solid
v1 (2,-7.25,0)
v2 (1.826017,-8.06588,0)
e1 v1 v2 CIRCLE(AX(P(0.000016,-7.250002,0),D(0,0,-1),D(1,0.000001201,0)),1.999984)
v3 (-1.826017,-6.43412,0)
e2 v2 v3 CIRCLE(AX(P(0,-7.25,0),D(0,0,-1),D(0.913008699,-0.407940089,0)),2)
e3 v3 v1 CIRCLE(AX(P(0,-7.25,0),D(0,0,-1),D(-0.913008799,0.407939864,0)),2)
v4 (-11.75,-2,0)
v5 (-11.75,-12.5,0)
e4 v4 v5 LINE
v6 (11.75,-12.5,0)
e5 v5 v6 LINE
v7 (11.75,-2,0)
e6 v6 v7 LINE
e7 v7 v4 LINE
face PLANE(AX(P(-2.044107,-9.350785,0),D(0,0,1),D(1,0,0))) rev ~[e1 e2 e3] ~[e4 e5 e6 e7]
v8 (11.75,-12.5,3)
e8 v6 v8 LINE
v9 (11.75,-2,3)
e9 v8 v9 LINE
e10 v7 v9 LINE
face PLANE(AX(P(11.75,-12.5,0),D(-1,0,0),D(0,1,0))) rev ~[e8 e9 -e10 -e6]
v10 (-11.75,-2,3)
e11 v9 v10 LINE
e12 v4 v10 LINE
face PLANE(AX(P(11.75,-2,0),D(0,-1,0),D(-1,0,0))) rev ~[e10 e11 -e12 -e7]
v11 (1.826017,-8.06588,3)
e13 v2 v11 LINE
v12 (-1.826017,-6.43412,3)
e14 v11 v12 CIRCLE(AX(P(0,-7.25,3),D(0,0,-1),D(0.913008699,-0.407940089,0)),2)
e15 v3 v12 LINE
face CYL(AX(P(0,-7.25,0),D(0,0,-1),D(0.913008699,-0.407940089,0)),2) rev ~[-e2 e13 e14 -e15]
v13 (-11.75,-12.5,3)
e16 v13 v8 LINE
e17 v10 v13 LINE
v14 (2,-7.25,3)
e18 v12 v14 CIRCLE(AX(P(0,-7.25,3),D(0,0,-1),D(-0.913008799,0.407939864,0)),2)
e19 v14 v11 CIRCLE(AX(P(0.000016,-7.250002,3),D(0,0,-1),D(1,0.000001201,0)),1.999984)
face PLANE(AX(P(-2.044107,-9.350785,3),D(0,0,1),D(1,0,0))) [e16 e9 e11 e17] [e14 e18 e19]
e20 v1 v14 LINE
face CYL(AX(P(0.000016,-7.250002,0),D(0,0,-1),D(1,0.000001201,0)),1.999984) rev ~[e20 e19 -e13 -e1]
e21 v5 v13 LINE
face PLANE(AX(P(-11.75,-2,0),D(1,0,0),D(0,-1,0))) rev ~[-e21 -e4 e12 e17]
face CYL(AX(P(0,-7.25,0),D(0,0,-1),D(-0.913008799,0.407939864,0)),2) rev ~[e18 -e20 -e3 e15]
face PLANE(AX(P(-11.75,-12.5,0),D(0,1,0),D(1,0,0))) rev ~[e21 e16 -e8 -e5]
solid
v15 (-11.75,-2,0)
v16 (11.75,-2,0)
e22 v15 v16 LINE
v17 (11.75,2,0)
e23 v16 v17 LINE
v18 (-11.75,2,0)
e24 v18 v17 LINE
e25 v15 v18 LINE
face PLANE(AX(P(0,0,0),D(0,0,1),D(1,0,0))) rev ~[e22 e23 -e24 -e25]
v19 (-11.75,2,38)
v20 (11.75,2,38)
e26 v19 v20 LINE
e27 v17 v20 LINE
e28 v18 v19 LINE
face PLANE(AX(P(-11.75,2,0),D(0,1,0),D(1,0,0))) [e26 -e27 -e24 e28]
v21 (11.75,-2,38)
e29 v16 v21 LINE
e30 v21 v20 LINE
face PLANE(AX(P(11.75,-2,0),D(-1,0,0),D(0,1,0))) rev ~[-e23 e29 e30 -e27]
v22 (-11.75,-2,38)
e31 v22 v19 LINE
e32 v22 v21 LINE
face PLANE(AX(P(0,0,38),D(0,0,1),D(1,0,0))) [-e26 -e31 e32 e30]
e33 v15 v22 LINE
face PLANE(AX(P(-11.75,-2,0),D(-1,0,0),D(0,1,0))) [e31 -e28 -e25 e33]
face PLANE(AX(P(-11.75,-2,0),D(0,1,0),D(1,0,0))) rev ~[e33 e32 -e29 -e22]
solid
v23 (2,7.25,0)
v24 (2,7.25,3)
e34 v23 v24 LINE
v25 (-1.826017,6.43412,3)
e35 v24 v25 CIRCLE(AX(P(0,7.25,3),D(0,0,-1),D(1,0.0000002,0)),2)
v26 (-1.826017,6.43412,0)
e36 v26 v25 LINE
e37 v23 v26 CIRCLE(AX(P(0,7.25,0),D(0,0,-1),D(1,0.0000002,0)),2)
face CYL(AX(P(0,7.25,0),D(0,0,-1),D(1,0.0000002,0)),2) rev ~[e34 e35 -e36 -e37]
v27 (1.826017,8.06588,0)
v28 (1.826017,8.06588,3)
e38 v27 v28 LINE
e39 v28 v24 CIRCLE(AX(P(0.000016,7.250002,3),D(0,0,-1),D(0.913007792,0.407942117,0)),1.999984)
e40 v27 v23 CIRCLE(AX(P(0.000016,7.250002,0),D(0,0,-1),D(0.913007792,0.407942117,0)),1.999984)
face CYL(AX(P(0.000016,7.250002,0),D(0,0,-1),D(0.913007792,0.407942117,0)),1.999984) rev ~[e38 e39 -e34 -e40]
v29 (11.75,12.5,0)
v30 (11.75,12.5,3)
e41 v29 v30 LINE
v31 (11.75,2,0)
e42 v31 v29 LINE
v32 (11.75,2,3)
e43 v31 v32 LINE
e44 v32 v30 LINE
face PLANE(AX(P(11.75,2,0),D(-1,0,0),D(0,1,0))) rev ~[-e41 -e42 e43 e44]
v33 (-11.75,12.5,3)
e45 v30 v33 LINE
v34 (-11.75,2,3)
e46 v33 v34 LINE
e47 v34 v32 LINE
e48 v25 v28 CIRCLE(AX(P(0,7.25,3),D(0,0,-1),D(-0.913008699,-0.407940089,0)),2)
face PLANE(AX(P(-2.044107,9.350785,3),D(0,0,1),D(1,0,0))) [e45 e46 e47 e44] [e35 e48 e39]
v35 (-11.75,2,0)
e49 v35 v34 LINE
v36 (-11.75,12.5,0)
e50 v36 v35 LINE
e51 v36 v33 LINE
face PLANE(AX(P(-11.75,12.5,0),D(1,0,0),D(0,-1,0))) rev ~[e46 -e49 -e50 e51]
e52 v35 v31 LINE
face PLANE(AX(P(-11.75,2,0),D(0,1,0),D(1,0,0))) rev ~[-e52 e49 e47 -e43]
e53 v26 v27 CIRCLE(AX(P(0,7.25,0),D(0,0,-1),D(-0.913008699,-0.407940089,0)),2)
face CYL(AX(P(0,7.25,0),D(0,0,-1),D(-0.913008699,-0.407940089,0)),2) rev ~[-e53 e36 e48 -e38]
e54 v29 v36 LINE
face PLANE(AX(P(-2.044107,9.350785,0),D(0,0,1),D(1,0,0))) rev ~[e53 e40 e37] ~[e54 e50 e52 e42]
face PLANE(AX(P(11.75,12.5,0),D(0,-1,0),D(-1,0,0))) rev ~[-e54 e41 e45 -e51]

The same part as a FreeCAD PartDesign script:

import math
import FreeCAD as App
import Part
import Sketcher

V = App.Vector
Q = App.Units.Quantity


def add_polygon(sketch, points):
    """Adds a closed chain of lines whose ends are joined by coincident constraints."""
    first, n = sketch.GeometryCount, len(points)
    for a, b in zip(points, points[1:] + points[:1]):
        sketch.addGeometry(Part.LineSegment(App.Vector(*a, 0), App.Vector(*b, 0)), False)
    for i in range(n):
        sketch.addConstraint(Sketcher.Constraint("Coincident", first + i, 2, first + (i + 1) % n, 1))

doc = App.newDocument("Part")
body = doc.addObject("PartDesign::Body", "Body")
body.AllowCompound = True

# Sketch on XY plane
sketch1 = body.newObject("Sketcher::SketchObject", "Sketch")
sketch1.AttachmentSupport = (doc.getObject("XY_Plane"), [""])
sketch1.MapMode = "FlatFace"
add_polygon(sketch1, [(11.75, 12.5), (-11.75, 12.5), (-11.75, 2), (11.75, 2)])  # lines 0-3
sketch1.addGeometry(Part.ArcOfCircle(Part.Circle(V(0, 7.25, 0), V(0, 0, 1), 2), math.radians(24.0755), math.radians(204.0755)), False)  # 4
sketch1.addGeometry(Part.ArcOfCircle(Part.Circle(V(0.000016, 7.250002, 0), V(0, 0, 1), 1.999984), math.radians(-0.000069), math.radians(24.075627)), False)  # 5
sketch1.addGeometry(Part.ArcOfCircle(Part.Circle(V(0, 7.25, 0), V(0, 0, 1), 2), math.radians(-155.924514), math.radians(0.000011)), False)  # 6
add_polygon(sketch1, [(-11.75, -2), (-11.75, -12.5), (11.75, -12.5), (11.75, -2)])  # lines 7-10
sketch1.addGeometry(Part.ArcOfCircle(Part.Circle(V(0, -7.25, 0), V(0, 0, 1), 2), math.radians(155.9245), math.radians(335.9245)), False)  # 11
sketch1.addGeometry(Part.ArcOfCircle(Part.Circle(V(0, -7.25, 0), V(0, 0, 1), 2), math.radians(-0.000011), math.radians(155.924514)), False)  # 12
sketch1.addGeometry(Part.ArcOfCircle(Part.Circle(V(0.000016, -7.250002, 0), V(0, 0, 1), 1.999984), math.radians(-24.075627), math.radians(0.000069)), False)  # 13
sketch1.addConstraint(Sketcher.Constraint("Coincident", 4, 1, 5, 2))
sketch1.addConstraint(Sketcher.Constraint("Coincident", 5, 1, 6, 2))
sketch1.addConstraint(Sketcher.Constraint("Coincident", 6, 1, 4, 2))
sketch1.addConstraint(Sketcher.Constraint("Coincident", 11, 1, 12, 2))
sketch1.addConstraint(Sketcher.Constraint("Coincident", 12, 1, 13, 2))
sketch1.addConstraint(Sketcher.Constraint("Coincident", 13, 1, 11, 2))
sketch1.addConstraint(Sketcher.Constraint("Horizontal", 0))
sketch1.addConstraint(Sketcher.Constraint("Vertical", 1))
sketch1.addConstraint(Sketcher.Constraint("Horizontal", 2))
sketch1.addConstraint(Sketcher.Constraint("Vertical", 3))
sketch1.addConstraint(Sketcher.Constraint("Vertical", 7))
sketch1.addConstraint(Sketcher.Constraint("Horizontal", 8))
sketch1.addConstraint(Sketcher.Constraint("Vertical", 9))
sketch1.addConstraint(Sketcher.Constraint("Horizontal", 10))
sketch1.addConstraint(Sketcher.Constraint("Coincident", 6, 3, 4, 3))
sketch1.addConstraint(Sketcher.Constraint("Coincident", 12, 3, 11, 3))
sketch1.addConstraint(Sketcher.Constraint("PointOnObject", 4, 3, -2))
sketch1.addConstraint(Sketcher.Constraint("PointOnObject", 11, 3, -2))
sketch1.addConstraint(Sketcher.Constraint("Radius", 4, Q("2 mm")))
sketch1.addConstraint(Sketcher.Constraint("Radius", 11, Q("2 mm")))
sketch1.addConstraint(Sketcher.Constraint("DistanceX", 0, 2, 0, 1, Q("23.5 mm")))
sketch1.addConstraint(Sketcher.Constraint("DistanceX", 8, 1, 8, 2, Q("23.5 mm")))
sketch1.addConstraint(Sketcher.Constraint("DistanceY", 1, 2, 1, 1, Q("10.5 mm")))
sketch1.addConstraint(Sketcher.Constraint("DistanceY", 7, 2, 7, 1, Q("10.5 mm")))
sketch1.addConstraint(Sketcher.Constraint("DistanceY", -1, 1, 1, 2, Q("2 mm")))
sketch1.addConstraint(Sketcher.Constraint("DistanceY", 9, 2, -1, 1, Q("2 mm")))
sketch1.addConstraint(Sketcher.Constraint("DistanceY", 11, 3, 6, 3, Q("14.5 mm")))
sketch1.addConstraint(Sketcher.Constraint("DistanceY", -1, 1, 4, 3, Q("7.25 mm")))
sketch1.addConstraint(Sketcher.Constraint("DistanceX", 0, 2, -1, 1, Q("11.75 mm")))
sketch1.addConstraint(Sketcher.Constraint("DistanceY", -1, 1, 5, 1, Q("7.25 mm")))
sketch1.addConstraint(Sketcher.Constraint("DistanceX", 7, 2, -1, 1, Q("11.75 mm")))
sketch1.addConstraint(Sketcher.Constraint("DistanceY", 12, 1, -1, 1, Q("7.25 mm")))
sketch1.addConstraint(Sketcher.Constraint("Radius", 5, Q("1.999984 mm")))
sketch1.addConstraint(Sketcher.Constraint("Radius", 13, Q("1.999984 mm")))
sketch1.addConstraint(Sketcher.Constraint("DistanceX", 5, 3, 4, 1, Q("1.826001 mm")))
sketch1.addConstraint(Sketcher.Constraint("DistanceX", 13, 3, 13, 1, Q("1.826001 mm")))
sketch1.addConstraint(Sketcher.Constraint("DistanceY", -1, 1, 6, 1, Q("6.43412 mm")))
sketch1.addConstraint(Sketcher.Constraint("DistanceY", 11, 1, -1, 1, Q("6.43412 mm")))
pad1 = body.newObject("PartDesign::Pad", "Pad")
pad1.Profile = sketch1
pad1.Length = 3
body2 = doc.addObject("PartDesign::Body", "Body001")

# Sketch on XY plane
sketch2 = body2.newObject("Sketcher::SketchObject", "Sketch001")
sketch2.AttachmentSupport = (doc.getObject("XY_Plane001"), [""])
sketch2.MapMode = "FlatFace"
add_polygon(sketch2, [(-11.8, 2), (-11.8, -2), (11.8, -2), (11.8, 2)])  # lines 0-3
sketch2.addConstraint(Sketcher.Constraint("Vertical", 0))
sketch2.addConstraint(Sketcher.Constraint("Horizontal", 1))
sketch2.addConstraint(Sketcher.Constraint("Vertical", 2))
sketch2.addConstraint(Sketcher.Constraint("Horizontal", 3))
sketch2.addConstraint(Sketcher.Constraint("Symmetric", 0, 2, 2, 2, -1, 1))
sketch2.addConstraint(Sketcher.Constraint("DistanceY", 0, 2, 0, 1, Q("4 mm")))
sketch2.addConstraint(Sketcher.Constraint("DistanceX", 1, 1, 1, 2, Q("23.5 mm")))
pad2 = body2.newObject("PartDesign::Pad", "Pad001")
pad2.Profile = sketch2
pad2.Length = 38

doc.recompute()
